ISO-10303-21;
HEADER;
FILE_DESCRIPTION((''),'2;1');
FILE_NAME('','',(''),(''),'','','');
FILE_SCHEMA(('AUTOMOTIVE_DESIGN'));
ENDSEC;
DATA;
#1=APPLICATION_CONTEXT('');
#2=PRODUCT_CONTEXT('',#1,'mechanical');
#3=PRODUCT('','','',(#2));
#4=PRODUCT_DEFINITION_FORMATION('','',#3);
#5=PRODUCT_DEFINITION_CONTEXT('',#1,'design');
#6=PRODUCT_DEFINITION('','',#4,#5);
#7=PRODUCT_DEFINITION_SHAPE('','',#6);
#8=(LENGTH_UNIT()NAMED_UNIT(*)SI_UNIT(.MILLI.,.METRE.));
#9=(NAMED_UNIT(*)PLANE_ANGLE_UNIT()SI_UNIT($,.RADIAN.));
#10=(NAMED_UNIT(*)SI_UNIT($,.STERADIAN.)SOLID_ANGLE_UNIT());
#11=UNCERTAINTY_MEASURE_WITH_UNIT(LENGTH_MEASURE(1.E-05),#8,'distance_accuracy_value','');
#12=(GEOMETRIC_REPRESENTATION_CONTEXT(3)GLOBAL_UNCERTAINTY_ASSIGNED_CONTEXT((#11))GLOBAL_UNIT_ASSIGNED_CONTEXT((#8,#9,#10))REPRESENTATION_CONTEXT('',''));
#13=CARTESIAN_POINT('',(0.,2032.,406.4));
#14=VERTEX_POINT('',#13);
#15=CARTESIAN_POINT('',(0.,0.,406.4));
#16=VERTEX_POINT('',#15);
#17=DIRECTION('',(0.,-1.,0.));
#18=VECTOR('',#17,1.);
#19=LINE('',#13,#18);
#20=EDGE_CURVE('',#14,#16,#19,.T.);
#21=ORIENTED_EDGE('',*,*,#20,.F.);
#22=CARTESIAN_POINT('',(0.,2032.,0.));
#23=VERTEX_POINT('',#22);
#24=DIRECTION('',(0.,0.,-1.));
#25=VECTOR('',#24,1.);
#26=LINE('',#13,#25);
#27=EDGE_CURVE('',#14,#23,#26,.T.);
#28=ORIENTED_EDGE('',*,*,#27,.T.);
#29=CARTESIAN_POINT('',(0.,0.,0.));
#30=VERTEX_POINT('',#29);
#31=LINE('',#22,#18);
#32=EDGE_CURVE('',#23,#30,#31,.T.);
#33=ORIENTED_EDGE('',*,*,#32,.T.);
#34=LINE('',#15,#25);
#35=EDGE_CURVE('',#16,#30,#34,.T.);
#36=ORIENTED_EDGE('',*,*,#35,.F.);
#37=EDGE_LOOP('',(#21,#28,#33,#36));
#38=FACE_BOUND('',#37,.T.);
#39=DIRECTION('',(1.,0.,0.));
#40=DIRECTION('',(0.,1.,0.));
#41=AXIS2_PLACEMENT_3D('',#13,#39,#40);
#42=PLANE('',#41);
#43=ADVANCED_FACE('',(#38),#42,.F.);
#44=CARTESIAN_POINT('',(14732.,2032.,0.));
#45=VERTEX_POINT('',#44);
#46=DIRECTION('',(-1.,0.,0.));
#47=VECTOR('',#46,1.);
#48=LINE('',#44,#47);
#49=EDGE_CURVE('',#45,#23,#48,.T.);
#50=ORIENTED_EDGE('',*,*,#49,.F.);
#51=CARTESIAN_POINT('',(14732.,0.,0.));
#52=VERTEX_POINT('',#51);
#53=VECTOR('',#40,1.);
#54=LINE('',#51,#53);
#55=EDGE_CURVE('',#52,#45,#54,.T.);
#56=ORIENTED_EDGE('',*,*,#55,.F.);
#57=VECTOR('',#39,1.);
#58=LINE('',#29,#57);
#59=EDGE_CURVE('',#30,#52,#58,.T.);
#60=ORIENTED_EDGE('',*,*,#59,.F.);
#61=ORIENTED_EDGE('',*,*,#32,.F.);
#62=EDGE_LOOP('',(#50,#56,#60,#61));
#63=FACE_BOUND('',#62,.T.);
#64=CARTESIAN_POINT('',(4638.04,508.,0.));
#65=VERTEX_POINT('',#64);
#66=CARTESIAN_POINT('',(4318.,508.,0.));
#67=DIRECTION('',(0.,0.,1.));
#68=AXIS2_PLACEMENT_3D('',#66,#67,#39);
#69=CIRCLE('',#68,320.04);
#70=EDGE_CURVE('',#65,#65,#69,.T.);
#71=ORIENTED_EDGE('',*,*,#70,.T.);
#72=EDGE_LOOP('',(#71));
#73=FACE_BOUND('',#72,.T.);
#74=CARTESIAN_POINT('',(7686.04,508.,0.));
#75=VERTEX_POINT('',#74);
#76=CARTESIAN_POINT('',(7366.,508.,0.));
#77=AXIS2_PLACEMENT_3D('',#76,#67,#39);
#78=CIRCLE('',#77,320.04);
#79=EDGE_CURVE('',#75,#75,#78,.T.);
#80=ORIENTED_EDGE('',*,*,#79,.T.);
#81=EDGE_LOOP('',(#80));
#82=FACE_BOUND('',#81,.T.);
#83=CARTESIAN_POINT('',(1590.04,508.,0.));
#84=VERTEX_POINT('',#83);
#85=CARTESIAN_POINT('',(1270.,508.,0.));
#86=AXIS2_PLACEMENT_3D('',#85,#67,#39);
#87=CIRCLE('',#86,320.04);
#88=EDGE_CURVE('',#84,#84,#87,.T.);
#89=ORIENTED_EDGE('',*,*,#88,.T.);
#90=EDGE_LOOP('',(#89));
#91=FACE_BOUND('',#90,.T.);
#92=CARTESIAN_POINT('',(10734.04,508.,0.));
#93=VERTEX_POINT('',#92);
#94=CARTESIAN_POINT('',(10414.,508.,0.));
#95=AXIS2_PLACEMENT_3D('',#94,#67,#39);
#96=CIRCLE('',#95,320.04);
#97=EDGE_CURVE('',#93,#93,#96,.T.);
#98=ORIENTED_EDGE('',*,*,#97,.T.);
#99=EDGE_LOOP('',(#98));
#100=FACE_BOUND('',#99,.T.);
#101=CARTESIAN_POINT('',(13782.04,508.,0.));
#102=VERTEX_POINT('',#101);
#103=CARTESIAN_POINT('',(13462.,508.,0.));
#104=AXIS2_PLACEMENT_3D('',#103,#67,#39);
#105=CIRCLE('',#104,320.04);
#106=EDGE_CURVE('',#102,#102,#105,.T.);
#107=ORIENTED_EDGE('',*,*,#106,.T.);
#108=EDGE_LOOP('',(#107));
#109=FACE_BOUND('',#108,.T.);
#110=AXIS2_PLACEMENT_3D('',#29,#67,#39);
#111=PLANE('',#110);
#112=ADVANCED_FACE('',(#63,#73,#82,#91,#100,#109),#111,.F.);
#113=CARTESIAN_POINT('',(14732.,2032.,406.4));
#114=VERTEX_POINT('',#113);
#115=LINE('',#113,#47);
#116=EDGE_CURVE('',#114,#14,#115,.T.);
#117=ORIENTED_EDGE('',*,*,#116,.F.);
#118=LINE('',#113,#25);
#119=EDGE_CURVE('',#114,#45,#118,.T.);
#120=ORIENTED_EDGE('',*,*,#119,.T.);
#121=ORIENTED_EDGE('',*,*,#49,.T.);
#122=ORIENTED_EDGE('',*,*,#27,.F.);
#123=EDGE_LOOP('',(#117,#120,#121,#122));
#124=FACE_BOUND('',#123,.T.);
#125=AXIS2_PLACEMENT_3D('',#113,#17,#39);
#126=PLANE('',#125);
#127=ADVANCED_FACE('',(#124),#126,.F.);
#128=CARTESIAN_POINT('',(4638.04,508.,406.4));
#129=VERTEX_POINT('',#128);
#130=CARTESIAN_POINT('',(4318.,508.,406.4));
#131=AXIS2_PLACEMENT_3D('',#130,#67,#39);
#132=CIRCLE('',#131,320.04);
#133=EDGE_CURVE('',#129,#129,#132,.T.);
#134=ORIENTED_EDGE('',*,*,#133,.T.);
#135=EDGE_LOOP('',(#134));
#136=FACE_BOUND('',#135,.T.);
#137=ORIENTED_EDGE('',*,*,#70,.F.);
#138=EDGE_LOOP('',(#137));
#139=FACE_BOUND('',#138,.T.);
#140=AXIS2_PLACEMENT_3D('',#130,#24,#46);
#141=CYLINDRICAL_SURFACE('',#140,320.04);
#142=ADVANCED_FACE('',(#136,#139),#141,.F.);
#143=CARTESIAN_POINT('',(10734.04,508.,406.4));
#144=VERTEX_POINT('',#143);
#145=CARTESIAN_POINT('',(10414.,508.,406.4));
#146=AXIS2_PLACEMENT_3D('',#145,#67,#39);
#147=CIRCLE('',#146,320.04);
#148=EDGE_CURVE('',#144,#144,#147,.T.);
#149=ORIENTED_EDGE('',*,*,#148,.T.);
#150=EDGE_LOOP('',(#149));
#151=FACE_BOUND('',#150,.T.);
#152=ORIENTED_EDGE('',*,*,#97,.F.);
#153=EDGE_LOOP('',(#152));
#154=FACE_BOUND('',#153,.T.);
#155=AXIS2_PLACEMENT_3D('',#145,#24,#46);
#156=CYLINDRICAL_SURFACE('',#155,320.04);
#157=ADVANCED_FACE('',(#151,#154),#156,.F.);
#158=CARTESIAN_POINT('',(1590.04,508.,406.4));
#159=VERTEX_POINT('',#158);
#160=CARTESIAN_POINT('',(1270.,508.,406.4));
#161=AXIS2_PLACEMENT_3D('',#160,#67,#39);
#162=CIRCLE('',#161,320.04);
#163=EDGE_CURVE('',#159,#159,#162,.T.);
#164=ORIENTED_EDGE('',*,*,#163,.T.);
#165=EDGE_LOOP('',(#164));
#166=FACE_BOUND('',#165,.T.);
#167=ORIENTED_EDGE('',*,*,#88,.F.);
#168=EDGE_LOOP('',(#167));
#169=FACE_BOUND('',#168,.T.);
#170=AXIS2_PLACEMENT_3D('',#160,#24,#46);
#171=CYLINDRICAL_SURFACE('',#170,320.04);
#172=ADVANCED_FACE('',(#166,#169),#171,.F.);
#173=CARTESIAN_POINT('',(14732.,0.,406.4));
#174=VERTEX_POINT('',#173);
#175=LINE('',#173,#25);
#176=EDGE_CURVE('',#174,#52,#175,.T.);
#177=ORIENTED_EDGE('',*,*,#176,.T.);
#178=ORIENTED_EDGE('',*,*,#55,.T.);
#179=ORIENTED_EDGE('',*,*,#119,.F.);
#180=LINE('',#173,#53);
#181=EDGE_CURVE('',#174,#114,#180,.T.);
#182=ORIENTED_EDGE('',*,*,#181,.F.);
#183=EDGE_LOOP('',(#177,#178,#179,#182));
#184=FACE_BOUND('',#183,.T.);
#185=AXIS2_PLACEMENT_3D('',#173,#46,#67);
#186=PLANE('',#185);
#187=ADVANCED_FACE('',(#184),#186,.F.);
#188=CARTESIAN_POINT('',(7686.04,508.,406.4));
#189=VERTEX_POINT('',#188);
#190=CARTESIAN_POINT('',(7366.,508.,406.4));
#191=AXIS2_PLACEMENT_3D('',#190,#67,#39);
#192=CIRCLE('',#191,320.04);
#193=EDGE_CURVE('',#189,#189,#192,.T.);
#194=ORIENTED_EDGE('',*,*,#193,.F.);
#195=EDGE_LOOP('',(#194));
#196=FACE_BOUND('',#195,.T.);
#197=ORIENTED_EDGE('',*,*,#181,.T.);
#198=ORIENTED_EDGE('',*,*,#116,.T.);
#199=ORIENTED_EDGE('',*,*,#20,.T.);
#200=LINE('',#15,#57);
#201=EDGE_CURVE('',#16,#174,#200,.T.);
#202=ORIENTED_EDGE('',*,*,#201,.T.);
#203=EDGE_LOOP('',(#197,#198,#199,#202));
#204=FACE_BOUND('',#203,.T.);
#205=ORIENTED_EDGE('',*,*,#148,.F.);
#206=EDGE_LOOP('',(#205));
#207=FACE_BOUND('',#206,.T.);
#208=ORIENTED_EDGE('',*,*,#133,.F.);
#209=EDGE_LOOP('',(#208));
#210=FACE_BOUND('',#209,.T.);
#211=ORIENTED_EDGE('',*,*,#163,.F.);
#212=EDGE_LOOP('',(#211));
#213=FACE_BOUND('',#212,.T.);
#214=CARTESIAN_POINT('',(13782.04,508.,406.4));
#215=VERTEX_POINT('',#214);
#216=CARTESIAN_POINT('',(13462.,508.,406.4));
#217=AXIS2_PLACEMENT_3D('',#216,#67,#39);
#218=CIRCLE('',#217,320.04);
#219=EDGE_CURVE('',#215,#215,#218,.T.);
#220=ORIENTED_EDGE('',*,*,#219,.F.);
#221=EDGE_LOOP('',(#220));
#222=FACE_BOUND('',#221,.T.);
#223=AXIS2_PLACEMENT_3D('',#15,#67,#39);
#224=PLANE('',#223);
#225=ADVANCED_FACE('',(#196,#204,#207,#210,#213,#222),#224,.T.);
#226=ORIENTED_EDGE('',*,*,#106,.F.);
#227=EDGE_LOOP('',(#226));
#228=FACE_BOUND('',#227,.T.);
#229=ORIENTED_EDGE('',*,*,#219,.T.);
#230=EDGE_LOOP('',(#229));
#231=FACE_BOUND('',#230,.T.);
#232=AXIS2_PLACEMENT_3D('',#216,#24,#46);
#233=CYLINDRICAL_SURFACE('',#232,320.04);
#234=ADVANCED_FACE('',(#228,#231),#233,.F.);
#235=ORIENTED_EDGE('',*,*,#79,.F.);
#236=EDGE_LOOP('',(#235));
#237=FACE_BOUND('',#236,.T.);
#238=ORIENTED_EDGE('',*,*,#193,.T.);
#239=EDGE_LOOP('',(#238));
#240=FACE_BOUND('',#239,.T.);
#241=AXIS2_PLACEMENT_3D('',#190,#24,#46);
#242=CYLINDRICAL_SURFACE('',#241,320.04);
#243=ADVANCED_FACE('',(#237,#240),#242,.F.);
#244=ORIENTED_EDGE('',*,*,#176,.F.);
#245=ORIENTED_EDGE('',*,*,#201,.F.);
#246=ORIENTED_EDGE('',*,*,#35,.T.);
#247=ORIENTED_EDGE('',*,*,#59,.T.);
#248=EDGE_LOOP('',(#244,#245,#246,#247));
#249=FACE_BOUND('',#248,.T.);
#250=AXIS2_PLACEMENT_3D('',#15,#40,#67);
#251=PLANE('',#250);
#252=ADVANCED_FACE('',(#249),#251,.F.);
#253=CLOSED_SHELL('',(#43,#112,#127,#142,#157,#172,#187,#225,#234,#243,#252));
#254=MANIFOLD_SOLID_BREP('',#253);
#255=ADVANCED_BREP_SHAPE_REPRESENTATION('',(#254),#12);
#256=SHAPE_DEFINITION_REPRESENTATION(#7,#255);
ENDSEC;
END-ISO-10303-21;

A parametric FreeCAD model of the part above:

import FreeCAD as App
import Part
import Sketcher
Q = App.Units.Quantity


def add_polygon(sketch, points):
    """Adds a closed chain of lines whose ends are joined by coincident constraints."""
    first, n = sketch.GeometryCount, len(points)
    for a, b in zip(points, points[1:] + points[:1]):
        sketch.addGeometry(Part.LineSegment(App.Vector(*a, 0), App.Vector(*b, 0)), False)
    for i in range(n):
        sketch.addConstraint(Sketcher.Constraint("Coincident", first + i, 2, first + (i + 1) % n, 1))

doc = App.newDocument("Part")
body = doc.addObject("PartDesign::Body", "Body")

sketch1 = body.newObject("Sketcher::SketchObject", "Sketch")
sketch1.AttachmentSupport = (doc.getObject("XY_Plane"), [""])
sketch1.MapMode = "FlatFace"
add_polygon(sketch1, [(0, 2032), (0, 0), (14732, 0), (14732, 2032)])
sketch1.addGeometry(Part.Circle(App.Vector(1270, 508, 0), App.Vector(0, 0, 1), 320.04), False)
sketch1.addGeometry(Part.Circle(App.Vector(4318, 508, 0), App.Vector(0, 0, 1), 320.04), False)
sketch1.addGeometry(Part.Circle(App.Vector(7366, 508, 0), App.Vector(0, 0, 1), 320.04), False)
sketch1.addGeometry(Part.Circle(App.Vector(10414, 508, 0), App.Vector(0, 0, 1), 320.04), False)
sketch1.addGeometry(Part.Circle(App.Vector(13462, 508, 0), App.Vector(0, 0, 1), 320.04), False)
sketch1.addConstraint(Sketcher.Constraint("Vertical", 0))
sketch1.addConstraint(Sketcher.Constraint("Horizontal", 1))
sketch1.addConstraint(Sketcher.Constraint("Vertical", 2))
sketch1.addConstraint(Sketcher.Constraint("Horizontal", 3))
sketch1.addConstraint(Sketcher.Constraint("Coincident", 0, 2, -1, 1))
sketch1.addConstraint(Sketcher.Constraint("Equal", 4, 5))
sketch1.addConstraint(Sketcher.Constraint("Equal", 5, 6))
sketch1.addConstraint(Sketcher.Constraint("Equal", 6, 7))
sketch1.addConstraint(Sketcher.Constraint("Equal", 7, 8))
sketch1.addConstraint(Sketcher.Constraint("Horizontal", 4, 3, 5, 3))
sketch1.addConstraint(Sketcher.Constraint("Horizontal", 5, 3, 6, 3))
sketch1.addConstraint(Sketcher.Constraint("Horizontal", 6, 3, 7, 3))
sketch1.addConstraint(Sketcher.Constraint("Horizontal", 7, 3, 8, 3))
sketch1.addConstraint(Sketcher.Constraint("Diameter", 4, Q("25.2 in")))
sketch1.addConstraint(Sketcher.Constraint("DistanceX", 1, 1, 1, 2, Q("580 in")))
sketch1.addConstraint(Sketcher.Constraint("DistanceY", 0, 2, 0, 1, Q("80 in")))
sketch1.addConstraint(Sketcher.Constraint("DistanceX", -1, 1, 4, 3, Q("50 in")))
sketch1.addConstraint(Sketcher.Constraint("DistanceY", -1, 1, 4, 3, Q("20 in")))
sketch1.addConstraint(Sketcher.Constraint("DistanceX", -1, 1, 5, 3, Q("170 in")))
sketch1.addConstraint(Sketcher.Constraint("DistanceX", -1, 1, 6, 3, Q("290 in")))
sketch1.addConstraint(Sketcher.Constraint("DistanceX", -1, 1, 7, 3, Q("410 in")))
sketch1.addConstraint(Sketcher.Constraint("DistanceX", -1, 1, 8, 3, Q("530 in")))
pad1 = body.newObject("PartDesign::Pad", "Pad")
pad1.Profile = sketch1
pad1.Length = Q("16 in")

doc.recompute()
